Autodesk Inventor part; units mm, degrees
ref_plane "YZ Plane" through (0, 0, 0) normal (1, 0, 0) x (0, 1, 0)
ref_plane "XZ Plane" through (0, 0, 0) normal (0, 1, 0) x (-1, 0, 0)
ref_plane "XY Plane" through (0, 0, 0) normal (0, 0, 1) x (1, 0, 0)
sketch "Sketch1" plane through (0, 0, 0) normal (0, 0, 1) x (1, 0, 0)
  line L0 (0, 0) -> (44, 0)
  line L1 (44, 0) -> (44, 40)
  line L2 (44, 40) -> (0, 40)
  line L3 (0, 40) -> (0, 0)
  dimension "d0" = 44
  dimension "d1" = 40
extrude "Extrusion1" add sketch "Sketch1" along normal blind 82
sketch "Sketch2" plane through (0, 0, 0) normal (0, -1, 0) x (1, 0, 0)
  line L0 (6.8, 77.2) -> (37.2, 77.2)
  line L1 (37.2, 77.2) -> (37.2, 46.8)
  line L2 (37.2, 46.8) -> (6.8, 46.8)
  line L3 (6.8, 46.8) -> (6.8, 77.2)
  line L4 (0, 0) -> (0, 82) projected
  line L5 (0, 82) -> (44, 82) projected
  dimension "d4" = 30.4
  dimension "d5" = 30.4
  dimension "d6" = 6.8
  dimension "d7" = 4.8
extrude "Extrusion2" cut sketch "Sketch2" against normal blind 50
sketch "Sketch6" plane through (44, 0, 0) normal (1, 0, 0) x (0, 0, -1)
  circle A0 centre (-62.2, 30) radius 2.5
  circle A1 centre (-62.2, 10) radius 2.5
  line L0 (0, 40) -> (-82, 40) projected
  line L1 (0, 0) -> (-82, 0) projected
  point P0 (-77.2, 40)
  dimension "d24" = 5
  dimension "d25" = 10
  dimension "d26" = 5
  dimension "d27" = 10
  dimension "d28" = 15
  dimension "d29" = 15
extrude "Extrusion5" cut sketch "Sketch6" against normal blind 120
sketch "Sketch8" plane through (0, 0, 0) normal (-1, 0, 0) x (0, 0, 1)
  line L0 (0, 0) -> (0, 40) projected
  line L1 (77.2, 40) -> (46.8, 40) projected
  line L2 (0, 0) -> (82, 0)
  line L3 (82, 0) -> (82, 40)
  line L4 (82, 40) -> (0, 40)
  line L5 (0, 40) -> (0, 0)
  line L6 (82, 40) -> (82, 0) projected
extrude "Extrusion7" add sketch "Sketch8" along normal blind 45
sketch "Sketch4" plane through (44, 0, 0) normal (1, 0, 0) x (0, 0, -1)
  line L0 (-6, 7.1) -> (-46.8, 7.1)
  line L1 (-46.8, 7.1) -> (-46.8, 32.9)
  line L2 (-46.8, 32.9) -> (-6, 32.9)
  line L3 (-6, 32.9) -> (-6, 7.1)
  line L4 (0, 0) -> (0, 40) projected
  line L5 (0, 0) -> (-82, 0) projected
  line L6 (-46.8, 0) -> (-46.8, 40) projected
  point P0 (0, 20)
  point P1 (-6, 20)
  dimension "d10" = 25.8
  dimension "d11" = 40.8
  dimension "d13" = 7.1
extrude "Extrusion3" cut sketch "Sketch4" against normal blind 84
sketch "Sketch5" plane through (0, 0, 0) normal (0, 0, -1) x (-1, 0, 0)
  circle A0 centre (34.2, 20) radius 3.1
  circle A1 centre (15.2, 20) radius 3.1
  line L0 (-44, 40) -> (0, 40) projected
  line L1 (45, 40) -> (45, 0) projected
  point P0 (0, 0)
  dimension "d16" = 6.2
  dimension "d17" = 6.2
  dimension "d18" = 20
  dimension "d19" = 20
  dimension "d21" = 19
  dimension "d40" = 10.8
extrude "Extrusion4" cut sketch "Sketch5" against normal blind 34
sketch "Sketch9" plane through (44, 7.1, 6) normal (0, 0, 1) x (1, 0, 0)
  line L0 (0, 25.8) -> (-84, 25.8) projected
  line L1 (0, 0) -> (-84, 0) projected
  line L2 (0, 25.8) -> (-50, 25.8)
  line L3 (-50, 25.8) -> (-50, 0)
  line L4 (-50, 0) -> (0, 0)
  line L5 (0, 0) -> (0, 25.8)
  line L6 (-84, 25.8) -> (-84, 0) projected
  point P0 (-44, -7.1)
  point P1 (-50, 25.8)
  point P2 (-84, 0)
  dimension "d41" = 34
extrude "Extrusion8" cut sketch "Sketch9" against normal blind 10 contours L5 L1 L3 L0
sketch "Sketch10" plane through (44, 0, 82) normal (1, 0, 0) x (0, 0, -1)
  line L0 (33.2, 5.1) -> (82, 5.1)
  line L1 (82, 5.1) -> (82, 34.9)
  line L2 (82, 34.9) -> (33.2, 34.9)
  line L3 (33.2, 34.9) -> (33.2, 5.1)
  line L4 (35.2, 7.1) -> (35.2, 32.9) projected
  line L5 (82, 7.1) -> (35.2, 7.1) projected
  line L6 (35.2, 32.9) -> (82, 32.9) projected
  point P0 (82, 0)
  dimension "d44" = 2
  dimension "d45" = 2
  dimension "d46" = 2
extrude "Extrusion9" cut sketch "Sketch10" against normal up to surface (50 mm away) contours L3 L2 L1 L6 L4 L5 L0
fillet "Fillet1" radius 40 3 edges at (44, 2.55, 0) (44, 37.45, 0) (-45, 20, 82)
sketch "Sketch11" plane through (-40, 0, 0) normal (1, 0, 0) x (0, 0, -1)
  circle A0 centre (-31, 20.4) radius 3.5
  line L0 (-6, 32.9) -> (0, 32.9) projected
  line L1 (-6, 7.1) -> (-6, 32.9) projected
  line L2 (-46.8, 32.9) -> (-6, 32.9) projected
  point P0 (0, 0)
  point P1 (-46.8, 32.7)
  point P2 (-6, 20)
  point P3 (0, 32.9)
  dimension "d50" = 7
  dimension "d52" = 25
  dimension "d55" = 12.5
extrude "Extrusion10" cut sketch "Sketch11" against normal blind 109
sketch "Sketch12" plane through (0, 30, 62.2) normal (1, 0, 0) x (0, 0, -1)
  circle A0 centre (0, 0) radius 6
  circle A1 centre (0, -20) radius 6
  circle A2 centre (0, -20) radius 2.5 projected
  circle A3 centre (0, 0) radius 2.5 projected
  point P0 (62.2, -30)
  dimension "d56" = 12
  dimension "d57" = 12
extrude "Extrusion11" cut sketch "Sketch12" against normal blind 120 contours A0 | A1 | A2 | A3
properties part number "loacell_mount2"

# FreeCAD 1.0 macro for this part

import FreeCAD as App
import Part
import Sketcher
Q = App.Units.Quantity


def edges_at(feature, points):
    """Names of the edges that pass closest to the given points."""
    edges = feature.Shape.Edges
    near = lambda p: min(range(len(edges)), key=lambda i: edges[i].distToShape(Part.Vertex(*p))[0])
    return sorted({f"Edge{near(p) + 1}" for p in points})


def add_polygon(sketch, points):
    """Adds a closed chain of lines whose ends are joined by coincident constraints."""
    first, n = sketch.GeometryCount, len(points)
    for a, b in zip(points, points[1:] + points[:1]):
        sketch.addGeometry(Part.LineSegment(App.Vector(*a, 0), App.Vector(*b, 0)), False)
    for i in range(n):
        sketch.addConstraint(Sketcher.Constraint("Coincident", first + i, 2, first + (i + 1) % n, 1))

doc = App.newDocument("Part")
params = doc.addObject("Spreadsheet::Sheet", "Params")
for row, (alias, value) in enumerate([
    ("sketch1_width", "44 mm"),
    ("sketch1_height", "40 mm"),
    ("pad1_length", "82 mm"),
    ("sketch2_width", "30.4 mm"),
    ("pocket1_length", "50 mm"),
    ("sketch3_diameter", "5 mm"),
    ("pocket2_length", "120 mm"),
    ("sketch4_width", "40 mm"),
    ("sketch4_height", "82 mm"),
    ("pad2_length", "45 mm"),
    ("sketch5_width", "25.8 mm"),
    ("sketch5_height", "40.8 mm"),
    ("pocket3_length", "84 mm"),
    ("sketch6_diameter", "6.2 mm"),
    ("pocket4_length", "34 mm"),
    ("sketch7_width", "50 mm"),
    ("sketch7_height", "25.8 mm"),
    ("pocket5_length", "10 mm"),
    ("sketch8_width", "2 mm"),
    ("sketch8_width2", "29.8 mm"),
    ("sketch8_height", "48.8 mm"),
    ("pocket6_length", "50 mm"),
    ("fillet_radius", "40 mm"),
    ("sketch9_diameter", "7 mm"),
    ("pocket7_length", "109 mm"),
    ("sketch10_diameter", "12 mm"),
    ("pocket8_length", "120 mm"),
], start=1):
    params.set(f"A{row}", alias)
    params.set(f"B{row}", "=" + value)
    params.setAlias(f"B{row}", alias)

body = doc.addObject("PartDesign::Body", "Body")

# Sketch on XY plane
sketch1 = body.newObject("Sketcher::SketchObject", "Sketch")
sketch1.AttachmentSupport = (doc.getObject("XY_Plane"), [""])
sketch1.MapMode = "FlatFace"
add_polygon(sketch1, [(0, 40), (0, 0), (44, 0), (44, 40)])  # lines 0-3
sketch1.addConstraint([
    Sketcher.Constraint("Vertical", 0),
    Sketcher.Constraint("Horizontal", 1),
    Sketcher.Constraint("Vertical", 2),
    Sketcher.Constraint("Horizontal", 3),
    Sketcher.Constraint("Coincident", 0, 2, -1, 1),
    Sketcher.Constraint("DistanceX", 1, 1, 1, 2, Q("44 mm")),
    Sketcher.Constraint("DistanceY", 0, 2, 0, 1, Q("40 mm")),
])
sketch1.setExpression("Constraints[9]", "Params.sketch1_width")
sketch1.setExpression("Constraints[10]", "Params.sketch1_height")
pad1 = body.newObject("PartDesign::Pad", "Pad")
pad1.Profile = sketch1
pad1.setExpression("Length", "Params.pad1_length")

# Sketch on XZ plane
sketch2 = body.newObject("Sketcher::SketchObject", "Sketch001")
sketch2.AttachmentSupport = (doc.getObject("XZ_Plane"), [""])
sketch2.MapMode = "FlatFace"
add_polygon(sketch2, [(37, 77), (7, 77), (7, 47), (37, 47)])  # lines 0-3
sketch2.addConstraint([
    Sketcher.Constraint("Horizontal", 0),
    Sketcher.Constraint("Vertical", 1),
    Sketcher.Constraint("Horizontal", 2),
    Sketcher.Constraint("Vertical", 3),
    Sketcher.Constraint("Equal", 2, 1),
    Sketcher.Constraint("DistanceX", 0, 2, 0, 1, Q("30.4 mm")),
    Sketcher.Constraint("DistanceX", -1, 1, 0, 2, Q("6.8 mm")),
    Sketcher.Constraint("DistanceY", -1, 1, 0, 2, Q("77.2 mm")),
])
sketch2.setExpression("Constraints[9]", "Params.sketch2_width")
pocket1 = body.newObject("PartDesign::Pocket", "Pocket")
pocket1.Profile = sketch2
pocket1.setExpression("Length", "Params.pocket1_length")

# Sketch on YZ plane
sketch3 = body.newObject("Sketcher::SketchObject", "Sketch002")
sketch3.AttachmentSupport = (doc.getObject("YZ_Plane"), [""])
sketch3.MapMode = "FlatFace"
sketch3.AttachmentOffset = App.Placement(App.Vector(0, 0, 44), App.Rotation())
sketch3.addGeometry([
    Part.Circle(App.Vector(30, 62.2, 0), App.Vector(0, 0, 1), 2.5),
    Part.Circle(App.Vector(10, 62.2, 0), App.Vector(0, 0, 1), 2.5),
], False)
sketch3.addConstraint([
    Sketcher.Constraint("Equal", 0, 1),
    Sketcher.Constraint("Horizontal", 0, 3, 1, 3),
    Sketcher.Constraint("Diameter", 0, Q("5 mm")),
    Sketcher.Constraint("DistanceX", -1, 1, 1, 3, Q("10 mm")),
    Sketcher.Constraint("DistanceX", -1, 1, 0, 3, Q("30 mm")),
    Sketcher.Constraint("DistanceY", -1, 1, 0, 3, Q("62.2 mm")),
])
sketch3.setExpression("Constraints[2]", "Params.sketch3_diameter")
pocket2 = body.newObject("PartDesign::Pocket", "Pocket001")
pocket2.Profile = sketch3
pocket2.setExpression("Length", "Params.pocket2_length")

# Sketch on YZ plane
sketch4 = body.newObject("Sketcher::SketchObject", "Sketch003")
sketch4.AttachmentSupport = (doc.getObject("YZ_Plane"), [""])
sketch4.MapMode = "FlatFace"
add_polygon(sketch4, [(40, 0), (0, 0), (0, 82), (40, 82)])  # lines 0-3
sketch4.addConstraint([
    Sketcher.Constraint("Horizontal", 0),
    Sketcher.Constraint("Vertical", 1),
    Sketcher.Constraint("Horizontal", 2),
    Sketcher.Constraint("Vertical", 3),
    Sketcher.Constraint("Coincident", 0, 2, -1, 1),
    Sketcher.Constraint("DistanceX", 0, 2, 0, 1, Q("40 mm")),
    Sketcher.Constraint("DistanceY", 1, 1, 1, 2, Q("82 mm")),
])
sketch4.setExpression("Constraints[9]", "Params.sketch4_width")
sketch4.setExpression("Constraints[10]", "Params.sketch4_height")
pad2 = body.newObject("PartDesign::Pad", "Pad001")
pad2.Profile = sketch4
pad2.setExpression("Length", "Params.pad2_length")
pad2.Reversed = True

# Sketch on YZ plane
sketch5 = body.newObject("Sketcher::SketchObject", "Sketch004")
sketch5.AttachmentSupport = (doc.getObject("YZ_Plane"), [""])
sketch5.MapMode = "FlatFace"
sketch5.AttachmentOffset = App.Placement(App.Vector(0, 0, 44), App.Rotation())
add_polygon(sketch5, [(7, 47), (7, 6), (33, 6), (33, 47)])  # lines 0-3
sketch5.addConstraint([
    Sketcher.Constraint("Vertical", 0),
    Sketcher.Constraint("Horizontal", 1),
    Sketcher.Constraint("Vertical", 2),
    Sketcher.Constraint("Horizontal", 3),
    Sketcher.Constraint("DistanceX", 1, 1, 1, 2, Q("25.8 mm")),
    Sketcher.Constraint("DistanceY", 0, 2, 0, 1, Q("40.8 mm")),
    Sketcher.Constraint("DistanceX", -1, 1, 0, 2, Q("7.1 mm")),
    Sketcher.Constraint("DistanceY", -1, 1, 0, 2, Q("6 mm")),
])
sketch5.setExpression("Constraints[8]", "Params.sketch5_width")
sketch5.setExpression("Constraints[9]", "Params.sketch5_height")
pocket3 = body.newObject("PartDesign::Pocket", "Pocket002")
pocket3.Profile = sketch5
pocket3.setExpression("Length", "Params.pocket3_length")

# Sketch on XY plane
sketch6 = body.newObject("Sketcher::SketchObject", "Sketch005")
sketch6.AttachmentSupport = (doc.getObject("XY_Plane"), [""])
sketch6.MapMode = "FlatFace"
sketch6.addGeometry([
    Part.Circle(App.Vector(-34.2, 20, 0), App.Vector(0, 0, 1), 3.1),
    Part.Circle(App.Vector(-15.2, 20, 0), App.Vector(0, 0, 1), 3.1),
], False)
sketch6.addConstraint([
    Sketcher.Constraint("Equal", 0, 1),
    Sketcher.Constraint("Horizontal", 0, 3, 1, 3),
    Sketcher.Constraint("Diameter", 0, Q("6.2 mm")),
    Sketcher.Constraint("DistanceY", -1, 1, 0, 3, Q("20 mm")),
    Sketcher.Constraint("DistanceX", 0, 3, 1, 3, Q("19 mm")),
    Sketcher.Constraint("DistanceX", 0, 3, -1, 1, Q("34.2 mm")),
])
sketch6.setExpression("Constraints[2]", "Params.sketch6_diameter")
pocket4 = body.newObject("PartDesign::Pocket", "Pocket003")
pocket4.Profile = sketch6
pocket4.setExpression("Length", "Params.pocket4_length")
pocket4.Reversed = True

# Sketch on XY plane
sketch7 = body.newObject("Sketcher::SketchObject", "Sketch006")
sketch7.AttachmentSupport = (doc.getObject("XY_Plane"), [""])
sketch7.MapMode = "FlatFace"
sketch7.AttachmentOffset = App.Placement(App.Vector(0, 0, 6), App.Rotation())
add_polygon(sketch7, [(44, 7), (44, 33), (-6, 33), (-6, 7)])  # lines 0-3
sketch7.addConstraint([
    Sketcher.Constraint("Vertical", 0),
    Sketcher.Constraint("Horizontal", 1),
    Sketcher.Constraint("Vertical", 2),
    Sketcher.Constraint("Horizontal", 3),
    Sketcher.Constraint("DistanceX", 1, 2, 1, 1, Q("50 mm")),
    Sketcher.Constraint("DistanceY", 0, 1, 0, 2, Q("25.8 mm")),
    Sketcher.Constraint("DistanceX", -1, 1, 0, 2, Q("44 mm")),
    Sketcher.Constraint("DistanceY", -1, 1, 0, 2, Q("32.9 mm")),
])
sketch7.setExpression("Constraints[8]", "Params.sketch7_width")
sketch7.setExpression("Constraints[9]", "Params.sketch7_height")
pocket5 = body.newObject("PartDesign::Pocket", "Pocket004")
pocket5.Profile = sketch7
pocket5.setExpression("Length", "Params.pocket5_length")

# Sketch on YZ plane
sketch8 = body.newObject("Sketcher::SketchObject", "Sketch007")
sketch8.AttachmentSupport = (doc.getObject("YZ_Plane"), [""])
sketch8.MapMode = "FlatFace"
sketch8.AttachmentOffset = App.Placement(App.Vector(0, 0, 44), App.Rotation())
add_polygon(sketch8, [(34.9, 48.8), (5.1, 48.8), (5.1, 0), (7.1, 0), (7.1, 46.8), (32.9, 46.8), (32.9, 0), (34.9, 0)])  # lines 0-7
sketch8.addConstraint([
    Sketcher.Constraint("Horizontal", 0),
    Sketcher.Constraint("Vertical", 1),
    Sketcher.Constraint("Horizontal", 2),
    Sketcher.Constraint("Vertical", 3),
    Sketcher.Constraint("Horizontal", 4),
    Sketcher.Constraint("Vertical", 5),
    Sketcher.Constraint("Horizontal", 6),
    Sketcher.Constraint("Vertical", 7),
    Sketcher.Constraint("PointOnObject", 1, 2, -1),
    Sketcher.Constraint("PointOnObject", 5, 2, -1),
    Sketcher.Constraint("Equal", 2, 6),
    Sketcher.Constraint("DistanceX", 2, 1, 2, 2, Q("2 mm")),
    Sketcher.Constraint("DistanceY", 3, 2, 0, 2, Q("2 mm")),
    Sketcher.Constraint("DistanceX", 0, 2, 0, 1, Q("29.8 mm")),
    Sketcher.Constraint("DistanceY", 1, 2, 1, 1, Q("48.8 mm")),
    Sketcher.Constraint("DistanceX", -1, 1, 0, 2, Q("5.1 mm")),
])
sketch8.setExpression("Constraints[19]", "Params.sketch8_width")
sketch8.setExpression("Constraints[21]", "Params.sketch8_width2")
sketch8.setExpression("Constraints[22]", "Params.sketch8_height")
pocket6 = body.newObject("PartDesign::Pocket", "Pocket005")
pocket6.Profile = sketch8
pocket6.setExpression("Length", "Params.pocket6_length")
doc.recompute()

fillet = body.newObject("PartDesign::Fillet", "Fillet")
fillet.Base = (pocket6, edges_at(pocket6, [(44, 2.55, 0), (44, 37.45, 0), (-45, 20, 82)]))
fillet.setExpression("Radius", "Params.fillet_radius")

# Sketch on YZ plane
sketch9 = body.newObject("Sketcher::SketchObject", "Sketch008")
sketch9.AttachmentSupport = (doc.getObject("YZ_Plane"), [""])
sketch9.MapMode = "FlatFace"
sketch9.AttachmentOffset = App.Placement(App.Vector(0, 0, -40), App.Rotation())
sketch9.addGeometry(Part.Circle(App.Vector(20.4, 31, 0), App.Vector(0, 0, 1), 3.5), False)
sketch9.addConstraint([
    Sketcher.Constraint("Diameter", 0, Q("7 mm")),
    Sketcher.Constraint("DistanceY", -1, 1, 0, 3, Q("31 mm")),
    Sketcher.Constraint("DistanceX", -1, 1, 0, 3, Q("20.4 mm")),
])
sketch9.setExpression("Constraints[0]", "Params.sketch9_diameter")
pocket7 = body.newObject("PartDesign::Pocket", "Pocket006")
pocket7.Profile = sketch9
pocket7.setExpression("Length", "Params.pocket7_length")

# Sketch on YZ plane
sketch10 = body.newObject("Sketcher::SketchObject", "Sketch009")
sketch10.AttachmentSupport = (doc.getObject("YZ_Plane"), [""])
sketch10.MapMode = "FlatFace"
sketch10.addGeometry([
    Part.Circle(App.Vector(30, 62, 0), App.Vector(0, 0, 1), 6),
    Part.Circle(App.Vector(10, 62, 0), App.Vector(0, 0, 1), 6),
], False)
sketch10.addConstraint([
    Sketcher.Constraint("Equal", 0, 1),
    Sketcher.Constraint("Horizontal", 0, 3, 1, 3),
    Sketcher.Constraint("Diameter", 0, Q("12 mm")),
    Sketcher.Constraint("DistanceX", -1, 1, 0, 3, Q("30 mm")),
    Sketcher.Constraint("DistanceX", -1, 1, 1, 3, Q("10 mm")),
    Sketcher.Constraint("DistanceY", -1, 1, 0, 3, Q("62.2 mm")),
])
sketch10.setExpression("Constraints[2]", "Params.sketch10_diameter")
pocket8 = body.newObject("PartDesign::Pocket", "Pocket007")
pocket8.Profile = sketch10
pocket8.setExpression("Length", "Params.pocket8_length")

doc.recompute()
